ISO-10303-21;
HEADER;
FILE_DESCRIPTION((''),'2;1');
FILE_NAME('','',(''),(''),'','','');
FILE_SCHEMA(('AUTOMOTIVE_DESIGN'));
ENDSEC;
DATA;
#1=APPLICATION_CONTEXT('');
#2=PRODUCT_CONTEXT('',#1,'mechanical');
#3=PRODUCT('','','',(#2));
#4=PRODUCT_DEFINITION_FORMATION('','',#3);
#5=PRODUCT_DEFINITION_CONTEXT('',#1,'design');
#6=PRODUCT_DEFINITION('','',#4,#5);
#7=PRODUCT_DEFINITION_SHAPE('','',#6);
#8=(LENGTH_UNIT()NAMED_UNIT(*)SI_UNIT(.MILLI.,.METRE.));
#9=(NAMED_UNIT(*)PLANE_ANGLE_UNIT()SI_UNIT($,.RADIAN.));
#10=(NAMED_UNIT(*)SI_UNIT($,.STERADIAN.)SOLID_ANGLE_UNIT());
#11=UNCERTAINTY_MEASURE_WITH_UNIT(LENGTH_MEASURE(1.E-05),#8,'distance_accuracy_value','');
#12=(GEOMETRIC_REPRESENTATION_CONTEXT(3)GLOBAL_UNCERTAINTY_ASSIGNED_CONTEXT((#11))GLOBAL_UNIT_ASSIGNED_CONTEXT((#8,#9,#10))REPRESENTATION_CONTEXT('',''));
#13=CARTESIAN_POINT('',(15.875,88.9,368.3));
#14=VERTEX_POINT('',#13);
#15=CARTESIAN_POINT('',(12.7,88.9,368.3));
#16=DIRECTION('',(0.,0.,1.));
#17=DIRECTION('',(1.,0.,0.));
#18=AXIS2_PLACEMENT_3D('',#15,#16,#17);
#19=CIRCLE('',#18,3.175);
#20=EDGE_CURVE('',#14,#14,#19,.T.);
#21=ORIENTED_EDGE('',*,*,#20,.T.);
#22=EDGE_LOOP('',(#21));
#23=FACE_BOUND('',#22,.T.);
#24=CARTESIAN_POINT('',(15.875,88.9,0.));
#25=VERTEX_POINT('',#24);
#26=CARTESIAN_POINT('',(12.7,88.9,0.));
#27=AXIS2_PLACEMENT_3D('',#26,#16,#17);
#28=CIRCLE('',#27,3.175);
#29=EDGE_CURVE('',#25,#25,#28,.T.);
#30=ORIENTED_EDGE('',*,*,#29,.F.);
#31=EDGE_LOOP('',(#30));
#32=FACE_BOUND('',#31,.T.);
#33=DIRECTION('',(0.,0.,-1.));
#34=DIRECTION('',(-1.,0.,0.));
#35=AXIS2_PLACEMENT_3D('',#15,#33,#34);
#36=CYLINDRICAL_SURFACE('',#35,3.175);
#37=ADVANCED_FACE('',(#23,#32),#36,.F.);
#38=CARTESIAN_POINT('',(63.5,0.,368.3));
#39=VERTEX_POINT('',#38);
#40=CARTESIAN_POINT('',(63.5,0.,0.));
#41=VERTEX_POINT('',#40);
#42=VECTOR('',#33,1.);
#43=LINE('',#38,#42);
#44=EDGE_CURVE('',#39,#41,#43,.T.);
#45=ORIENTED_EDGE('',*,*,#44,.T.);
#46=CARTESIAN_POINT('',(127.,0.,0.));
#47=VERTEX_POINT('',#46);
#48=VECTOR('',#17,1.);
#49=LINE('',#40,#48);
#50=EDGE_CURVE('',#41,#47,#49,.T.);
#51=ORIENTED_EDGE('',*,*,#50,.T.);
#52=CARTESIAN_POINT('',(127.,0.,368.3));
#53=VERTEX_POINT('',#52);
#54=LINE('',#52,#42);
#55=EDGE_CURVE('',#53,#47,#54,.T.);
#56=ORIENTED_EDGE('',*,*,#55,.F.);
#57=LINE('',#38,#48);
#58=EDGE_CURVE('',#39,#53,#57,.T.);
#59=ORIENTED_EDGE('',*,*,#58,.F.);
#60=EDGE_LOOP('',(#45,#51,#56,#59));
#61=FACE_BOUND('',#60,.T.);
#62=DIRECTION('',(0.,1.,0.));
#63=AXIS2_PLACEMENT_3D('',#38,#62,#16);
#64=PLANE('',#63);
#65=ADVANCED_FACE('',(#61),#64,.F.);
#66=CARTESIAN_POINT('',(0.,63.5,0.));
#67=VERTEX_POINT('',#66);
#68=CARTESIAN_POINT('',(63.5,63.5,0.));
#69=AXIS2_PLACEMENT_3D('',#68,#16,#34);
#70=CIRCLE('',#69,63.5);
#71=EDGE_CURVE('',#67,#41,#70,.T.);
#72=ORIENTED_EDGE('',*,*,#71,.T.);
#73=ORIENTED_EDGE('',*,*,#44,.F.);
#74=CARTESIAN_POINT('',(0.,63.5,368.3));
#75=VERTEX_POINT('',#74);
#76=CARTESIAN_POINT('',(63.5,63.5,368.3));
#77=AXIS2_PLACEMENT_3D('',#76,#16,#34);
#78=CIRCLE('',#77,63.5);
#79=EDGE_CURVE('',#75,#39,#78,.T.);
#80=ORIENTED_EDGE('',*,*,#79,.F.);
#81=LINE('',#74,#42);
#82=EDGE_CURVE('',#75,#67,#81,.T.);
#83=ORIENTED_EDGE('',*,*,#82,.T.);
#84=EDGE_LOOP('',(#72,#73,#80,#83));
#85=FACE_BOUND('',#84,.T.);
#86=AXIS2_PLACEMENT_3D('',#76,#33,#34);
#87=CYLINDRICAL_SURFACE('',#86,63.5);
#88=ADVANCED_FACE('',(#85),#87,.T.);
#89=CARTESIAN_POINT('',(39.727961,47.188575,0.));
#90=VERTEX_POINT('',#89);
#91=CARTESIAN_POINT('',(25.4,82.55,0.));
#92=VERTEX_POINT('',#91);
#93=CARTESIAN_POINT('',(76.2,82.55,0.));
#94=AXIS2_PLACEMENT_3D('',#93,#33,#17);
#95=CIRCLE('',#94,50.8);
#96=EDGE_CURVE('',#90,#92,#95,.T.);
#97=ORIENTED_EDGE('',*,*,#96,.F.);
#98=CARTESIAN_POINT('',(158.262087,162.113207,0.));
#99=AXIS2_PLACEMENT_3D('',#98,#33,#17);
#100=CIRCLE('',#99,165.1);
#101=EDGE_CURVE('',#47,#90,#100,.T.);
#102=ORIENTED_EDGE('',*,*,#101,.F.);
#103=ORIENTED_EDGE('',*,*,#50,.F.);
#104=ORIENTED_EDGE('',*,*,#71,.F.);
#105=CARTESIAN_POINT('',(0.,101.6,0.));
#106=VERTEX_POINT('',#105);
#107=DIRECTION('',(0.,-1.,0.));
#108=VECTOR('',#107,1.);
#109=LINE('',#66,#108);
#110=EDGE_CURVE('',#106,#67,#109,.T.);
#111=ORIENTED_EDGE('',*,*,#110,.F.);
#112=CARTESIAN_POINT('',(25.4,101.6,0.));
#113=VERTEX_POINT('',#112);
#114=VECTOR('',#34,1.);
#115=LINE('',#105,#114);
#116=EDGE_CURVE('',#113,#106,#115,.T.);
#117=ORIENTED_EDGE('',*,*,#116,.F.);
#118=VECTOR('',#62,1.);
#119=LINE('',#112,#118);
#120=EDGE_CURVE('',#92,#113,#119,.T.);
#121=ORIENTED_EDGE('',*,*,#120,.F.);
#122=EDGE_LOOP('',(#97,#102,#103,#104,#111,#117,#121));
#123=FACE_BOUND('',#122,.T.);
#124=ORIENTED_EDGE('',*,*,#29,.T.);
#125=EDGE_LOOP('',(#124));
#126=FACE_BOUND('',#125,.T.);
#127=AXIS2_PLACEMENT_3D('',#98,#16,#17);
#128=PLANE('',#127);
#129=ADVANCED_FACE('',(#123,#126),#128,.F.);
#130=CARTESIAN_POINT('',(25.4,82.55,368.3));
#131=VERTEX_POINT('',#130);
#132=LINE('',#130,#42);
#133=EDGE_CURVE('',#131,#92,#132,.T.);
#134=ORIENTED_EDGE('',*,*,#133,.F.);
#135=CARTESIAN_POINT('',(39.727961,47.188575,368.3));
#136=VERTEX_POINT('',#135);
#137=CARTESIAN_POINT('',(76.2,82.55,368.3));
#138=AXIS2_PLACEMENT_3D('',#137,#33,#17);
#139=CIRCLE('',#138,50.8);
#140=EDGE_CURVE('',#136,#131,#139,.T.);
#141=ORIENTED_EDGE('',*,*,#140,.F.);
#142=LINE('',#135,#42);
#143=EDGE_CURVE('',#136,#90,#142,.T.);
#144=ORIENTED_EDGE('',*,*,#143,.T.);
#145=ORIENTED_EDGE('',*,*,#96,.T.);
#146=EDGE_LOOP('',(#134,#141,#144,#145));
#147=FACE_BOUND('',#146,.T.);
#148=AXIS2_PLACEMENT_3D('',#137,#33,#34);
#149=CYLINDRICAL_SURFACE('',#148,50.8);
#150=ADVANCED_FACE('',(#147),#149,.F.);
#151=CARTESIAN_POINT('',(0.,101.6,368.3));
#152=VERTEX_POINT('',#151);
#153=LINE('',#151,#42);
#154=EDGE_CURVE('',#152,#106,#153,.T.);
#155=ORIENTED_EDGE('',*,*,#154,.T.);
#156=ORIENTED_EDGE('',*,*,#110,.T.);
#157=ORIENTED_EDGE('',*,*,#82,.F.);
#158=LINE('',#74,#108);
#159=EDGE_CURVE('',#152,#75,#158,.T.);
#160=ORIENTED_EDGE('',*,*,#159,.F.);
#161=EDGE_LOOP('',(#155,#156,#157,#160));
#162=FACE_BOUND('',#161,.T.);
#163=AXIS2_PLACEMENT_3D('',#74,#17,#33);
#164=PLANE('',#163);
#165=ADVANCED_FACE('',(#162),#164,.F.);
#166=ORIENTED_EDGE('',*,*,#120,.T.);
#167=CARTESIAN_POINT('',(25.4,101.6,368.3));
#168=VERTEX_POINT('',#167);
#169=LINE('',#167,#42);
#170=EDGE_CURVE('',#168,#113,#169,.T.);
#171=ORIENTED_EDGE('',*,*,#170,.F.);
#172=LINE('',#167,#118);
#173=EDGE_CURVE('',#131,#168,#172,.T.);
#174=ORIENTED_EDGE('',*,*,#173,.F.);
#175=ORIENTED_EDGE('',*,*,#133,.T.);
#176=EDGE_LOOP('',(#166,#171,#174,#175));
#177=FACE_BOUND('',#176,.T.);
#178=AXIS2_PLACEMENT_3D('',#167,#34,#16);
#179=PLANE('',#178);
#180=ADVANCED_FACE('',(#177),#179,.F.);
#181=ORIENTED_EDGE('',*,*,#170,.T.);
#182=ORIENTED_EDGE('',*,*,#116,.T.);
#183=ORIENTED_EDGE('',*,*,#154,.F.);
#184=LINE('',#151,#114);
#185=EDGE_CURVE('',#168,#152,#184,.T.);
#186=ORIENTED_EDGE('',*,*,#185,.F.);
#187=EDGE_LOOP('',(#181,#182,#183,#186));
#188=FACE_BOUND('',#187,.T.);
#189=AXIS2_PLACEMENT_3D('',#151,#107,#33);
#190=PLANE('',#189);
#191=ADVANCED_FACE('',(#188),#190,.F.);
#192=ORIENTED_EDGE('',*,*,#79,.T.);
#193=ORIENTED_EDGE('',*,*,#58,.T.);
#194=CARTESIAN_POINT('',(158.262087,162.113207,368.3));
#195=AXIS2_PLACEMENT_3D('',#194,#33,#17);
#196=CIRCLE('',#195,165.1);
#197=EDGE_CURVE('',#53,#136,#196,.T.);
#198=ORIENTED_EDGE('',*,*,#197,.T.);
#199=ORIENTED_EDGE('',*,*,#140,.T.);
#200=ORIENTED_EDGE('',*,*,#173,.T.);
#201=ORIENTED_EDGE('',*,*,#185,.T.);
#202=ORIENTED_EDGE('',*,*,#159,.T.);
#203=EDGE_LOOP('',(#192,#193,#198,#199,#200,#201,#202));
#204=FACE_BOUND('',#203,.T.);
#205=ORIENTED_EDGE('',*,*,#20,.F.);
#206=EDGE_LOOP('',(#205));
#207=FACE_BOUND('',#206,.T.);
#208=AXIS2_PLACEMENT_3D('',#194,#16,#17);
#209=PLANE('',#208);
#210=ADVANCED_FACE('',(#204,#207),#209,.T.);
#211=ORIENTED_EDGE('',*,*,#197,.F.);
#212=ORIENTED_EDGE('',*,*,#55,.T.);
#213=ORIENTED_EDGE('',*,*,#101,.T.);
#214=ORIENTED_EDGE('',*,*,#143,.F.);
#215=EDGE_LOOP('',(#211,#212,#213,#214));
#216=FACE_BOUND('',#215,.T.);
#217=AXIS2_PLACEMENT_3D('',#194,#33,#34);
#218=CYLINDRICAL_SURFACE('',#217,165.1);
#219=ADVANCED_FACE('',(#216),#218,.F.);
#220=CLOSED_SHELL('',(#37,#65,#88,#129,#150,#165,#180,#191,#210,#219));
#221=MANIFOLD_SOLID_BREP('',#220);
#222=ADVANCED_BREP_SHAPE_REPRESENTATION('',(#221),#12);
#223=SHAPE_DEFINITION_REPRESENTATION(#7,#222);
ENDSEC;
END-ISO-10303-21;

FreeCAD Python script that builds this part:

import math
import FreeCAD as App
import Part
import Sketcher
from FreeCAD import Vector
Q = App.Units.Quantity

doc = App.newDocument("Part")
body = doc.addObject("PartDesign::Body", "Body")

# Sketch on XY plane
sketch1 = body.newObject("Sketcher::SketchObject", "Sketch")
sketch1.AttachmentSupport = (doc.getObject("XY_Plane"), [""])
sketch1.MapMode = "FlatFace"
sketch1.addGeometry([
    Part.LineSegment(Vector(63.5, 0, 0), Vector(127, 0, 0)),  # 0
    Part.ArcOfCircle(Part.Circle(Vector(158.3, 162.1, 0), Vector(0, 0, 1), 165.1), math.radians(-136), math.radians(-101)),  # 1
    Part.ArcOfCircle(Part.Circle(Vector(76.2, 82.6, 0), Vector(0, 0, 1), 50.8), math.radians(-180), math.radians(-136)),  # 2
    Part.LineSegment(Vector(25.4, 82.5, 0), Vector(25.4, 101.6, 0)),  # 3
    Part.LineSegment(Vector(25.4, 101.6, 0), Vector(0, 101.6, 0)),  # 4
    Part.LineSegment(Vector(0, 101.6, 0), Vector(0, 63.5, 0)),  # 5
    Part.ArcOfCircle(Part.Circle(Vector(63.5, 63.5, 0), Vector(0, 0, 1), 63.5), math.radians(-180), math.radians(-90)),  # 6
    Part.Circle(Vector(12.7, 88.9, 0), Vector(0, 0, 1), 3.2),  # 7
], False)
sketch1.addConstraint([
    Sketcher.Constraint("Coincident", 0, 2, 1, 2),
    Sketcher.Constraint("Tangent", 1, 1, 2, 2),
    Sketcher.Constraint("Tangent", 2, 1, 3, 1),
    Sketcher.Constraint("Coincident", 3, 2, 4, 1),
    Sketcher.Constraint("Coincident", 4, 2, 5, 1),
    Sketcher.Constraint("Tangent", 5, 2, 6, 1),
    Sketcher.Constraint("Tangent", 6, 2, 0, 1),
    Sketcher.Constraint("Horizontal", 0),
    Sketcher.Constraint("Vertical", 3),
    Sketcher.Constraint("Horizontal", 4),
    Sketcher.Constraint("Vertical", 5),
    Sketcher.Constraint("PointOnObject", 0, 2, -1),
    Sketcher.Constraint("PointOnObject", 4, 2, -2),
    Sketcher.Constraint("Radius", 2, Q("2 in")),
    Sketcher.Constraint("Radius", 1, Q("6.5 in")),
    Sketcher.Constraint("Radius", 6, Q("2.5 in")),
    Sketcher.Constraint("Diameter", 7, Q("0.25 in")),
    Sketcher.Constraint("DistanceX", 4, 2, 4, 1, Q("1 in")),
    Sketcher.Constraint("DistanceX", 0, 1, 0, 2, Q("2.5 in")),
    Sketcher.Constraint("DistanceY", 5, 2, 5, 1, Q("1.5 in")),
    Sketcher.Constraint("DistanceX", 7, 3, 6, 3, Q("2 in")),
    Sketcher.Constraint("DistanceY", 6, 3, 7, 3, Q("1 in")),
    Sketcher.Constraint("DistanceY", 3, 1, 3, 2, Q("0.75 in")),
])
pad1 = body.newObject("PartDesign::Pad", "Pad")
pad1.Profile = sketch1
pad1.Length = Q("14.5 in")

doc.recompute()
